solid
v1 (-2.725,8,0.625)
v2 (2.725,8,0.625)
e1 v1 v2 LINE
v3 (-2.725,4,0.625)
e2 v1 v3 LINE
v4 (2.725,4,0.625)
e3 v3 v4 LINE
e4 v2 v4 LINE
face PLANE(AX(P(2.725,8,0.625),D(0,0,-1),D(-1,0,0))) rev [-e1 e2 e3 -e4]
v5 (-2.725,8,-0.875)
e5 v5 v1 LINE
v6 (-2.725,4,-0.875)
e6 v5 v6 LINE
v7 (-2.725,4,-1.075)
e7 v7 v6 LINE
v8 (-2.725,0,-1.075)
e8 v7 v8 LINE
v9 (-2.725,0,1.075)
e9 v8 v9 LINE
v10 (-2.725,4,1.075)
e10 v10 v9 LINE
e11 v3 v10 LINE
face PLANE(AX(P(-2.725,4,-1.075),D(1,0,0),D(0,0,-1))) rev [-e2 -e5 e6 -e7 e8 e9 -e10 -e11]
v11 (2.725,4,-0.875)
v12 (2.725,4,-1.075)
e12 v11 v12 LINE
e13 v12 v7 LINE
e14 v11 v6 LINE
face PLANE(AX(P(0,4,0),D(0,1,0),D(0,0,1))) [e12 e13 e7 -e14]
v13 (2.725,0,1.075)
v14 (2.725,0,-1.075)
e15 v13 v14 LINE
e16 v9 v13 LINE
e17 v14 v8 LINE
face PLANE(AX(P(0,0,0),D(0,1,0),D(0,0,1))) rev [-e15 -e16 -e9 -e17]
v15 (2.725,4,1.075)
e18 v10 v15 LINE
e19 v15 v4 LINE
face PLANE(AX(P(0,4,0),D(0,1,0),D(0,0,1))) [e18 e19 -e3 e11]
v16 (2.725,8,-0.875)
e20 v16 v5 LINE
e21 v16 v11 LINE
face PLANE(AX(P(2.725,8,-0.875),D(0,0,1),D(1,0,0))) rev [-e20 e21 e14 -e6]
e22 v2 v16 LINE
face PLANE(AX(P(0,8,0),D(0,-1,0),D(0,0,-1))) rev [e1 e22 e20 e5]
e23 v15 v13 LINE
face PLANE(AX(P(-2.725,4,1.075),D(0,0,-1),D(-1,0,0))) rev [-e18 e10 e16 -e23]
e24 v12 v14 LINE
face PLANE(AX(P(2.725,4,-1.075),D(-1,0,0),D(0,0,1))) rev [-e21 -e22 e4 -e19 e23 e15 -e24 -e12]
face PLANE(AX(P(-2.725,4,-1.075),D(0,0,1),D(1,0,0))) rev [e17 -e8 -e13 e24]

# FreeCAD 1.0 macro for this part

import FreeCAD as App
import Part
import Sketcher

doc = App.newDocument("Part")
body = doc.addObject("PartDesign::Body", "Body")

# Sketch on XZ plane
sketch1 = doc.addObject("Sketcher::SketchObject", "Sketch")
body.addObject(sketch1)
sketch1.AttachmentSupport = (doc.XZ_Plane, [""])
sketch1.MapMode = "FlatFace"
sketch1.addGeometry([
    Part.LineSegment(App.Vector(-2.7, -1.1, 0), App.Vector(-2.7, 1.1, 0)),
    Part.LineSegment(App.Vector(-2.7, 1.1, 0), App.Vector(2.7, 1.1, 0)),
    Part.LineSegment(App.Vector(2.7, 1.1, 0), App.Vector(2.7, -1.1, 0)),
    Part.LineSegment(App.Vector(2.7, -1.1, 0), App.Vector(-2.7, -1.1, 0)),
], False)
sketch1.addConstraint([
    Sketcher.Constraint("Coincident", 0, 2, 1, 1),
    Sketcher.Constraint("Coincident", 1, 2, 2, 1),
    Sketcher.Constraint("Coincident", 2, 2, 3, 1),
    Sketcher.Constraint("Coincident", 3, 2, 0, 1),
    Sketcher.Constraint("Vertical", 0),
    Sketcher.Constraint("Horizontal", 1),
    Sketcher.Constraint("Vertical", 2),
    Sketcher.Constraint("Horizontal", 3),
    Sketcher.Constraint("Symmetric", 0, 2, 2, 2, -1, 1),
    Sketcher.Constraint("DistanceX", 1, 1, 1, 2, 5.45),
    Sketcher.Constraint("DistanceY", 0, 1, 0, 2, 2.15),
])
pad1 = doc.addObject("PartDesign::Pad", "Pad")
body.addObject(pad1)
pad1.Profile = sketch1
pad1.Length = 4
pad1.Reversed = True

# Sketch on XZ plane
sketch2 = doc.addObject("Sketcher::SketchObject", "Sketch001")
body.addObject(sketch2)
sketch2.AttachmentSupport = (doc.XZ_Plane, [""])
sketch2.MapMode = "FlatFace"
sketch2.AttachmentOffset = App.Placement(App.Vector(0, 0, -4), App.Rotation())
sketch2.addGeometry([
    Part.LineSegment(App.Vector(-2.7, -0.9, 0), App.Vector(-2.7, 0.6, 0)),
    Part.LineSegment(App.Vector(-2.7, 0.6, 0), App.Vector(2.7, 0.6, 0)),
    Part.LineSegment(App.Vector(2.7, 0.6, 0), App.Vector(2.7, -0.9, 0)),
    Part.LineSegment(App.Vector(2.7, -0.9, 0), App.Vector(-2.7, -0.9, 0)),
], False)
sketch2.addConstraint([
    Sketcher.Constraint("Coincident", 0, 2, 1, 1),
    Sketcher.Constraint("Coincident", 1, 2, 2, 1),
    Sketcher.Constraint("Coincident", 2, 2, 3, 1),
    Sketcher.Constraint("Coincident", 3, 2, 0, 1),
    Sketcher.Constraint("Vertical", 0),
    Sketcher.Constraint("Horizontal", 1),
    Sketcher.Constraint("Vertical", 2),
    Sketcher.Constraint("Horizontal", 3),
    Sketcher.Constraint("DistanceY", 0, 1, 0, 2, 1.5),
    Sketcher.Constraint("DistanceX", 1, 1, 1, 2, 5.45),
    Sketcher.Constraint("DistanceX", 0, 2, -1, 1, 2.725),
    Sketcher.Constraint("DistanceY", -1, 1, 0, 2, 0.625),
])
pad2 = doc.addObject("PartDesign::Pad", "Pad001")
body.addObject(pad2)
pad2.Profile = sketch2
pad2.Length = 4
pad2.Reversed = True

doc.recompute()
